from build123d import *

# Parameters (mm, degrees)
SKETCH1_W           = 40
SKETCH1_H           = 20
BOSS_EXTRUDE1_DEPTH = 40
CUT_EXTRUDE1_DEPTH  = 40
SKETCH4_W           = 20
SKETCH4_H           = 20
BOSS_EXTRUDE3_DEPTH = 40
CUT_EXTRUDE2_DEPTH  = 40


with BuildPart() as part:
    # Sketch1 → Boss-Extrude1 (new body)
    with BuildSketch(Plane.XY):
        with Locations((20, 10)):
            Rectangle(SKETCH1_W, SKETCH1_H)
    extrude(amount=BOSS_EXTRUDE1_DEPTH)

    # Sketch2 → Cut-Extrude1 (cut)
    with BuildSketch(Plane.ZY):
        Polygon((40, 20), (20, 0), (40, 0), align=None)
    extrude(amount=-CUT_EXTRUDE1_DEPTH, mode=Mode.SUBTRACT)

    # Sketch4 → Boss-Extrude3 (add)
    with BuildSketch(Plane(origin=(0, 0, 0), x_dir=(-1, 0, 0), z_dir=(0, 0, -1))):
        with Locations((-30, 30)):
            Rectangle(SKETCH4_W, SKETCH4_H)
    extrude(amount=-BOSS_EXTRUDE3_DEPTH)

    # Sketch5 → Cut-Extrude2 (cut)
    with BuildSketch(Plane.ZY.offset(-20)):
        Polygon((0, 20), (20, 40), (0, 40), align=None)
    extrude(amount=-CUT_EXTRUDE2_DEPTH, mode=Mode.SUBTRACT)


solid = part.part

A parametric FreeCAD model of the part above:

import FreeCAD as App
import Part
import Sketcher


def add_polygon(sketch, points):
    """Adds a closed chain of lines whose ends are joined by coincident constraints."""
    first, n = sketch.GeometryCount, len(points)
    for a, b in zip(points, points[1:] + points[:1]):
        sketch.addGeometry(Part.LineSegment(App.Vector(*a, 0), App.Vector(*b, 0)), False)
    for i in range(n):
        sketch.addConstraint(Sketcher.Constraint("Coincident", first + i, 2, first + (i + 1) % n, 1))

doc = App.newDocument("Part")
body = doc.addObject("PartDesign::Body", "Body")

# Sketch on XY plane
sketch1 = body.newObject("Sketcher::SketchObject", "Sketch")
sketch1.AttachmentSupport = (doc.getObject("XY_Plane"), [""])
sketch1.MapMode = "FlatFace"
add_polygon(sketch1, [(0, 20), (0, 0), (40, 0), (40, 20)])  # lines 0-3
sketch1.addConstraint(Sketcher.Constraint("Vertical", 0))
sketch1.addConstraint(Sketcher.Constraint("Horizontal", 1))
sketch1.addConstraint(Sketcher.Constraint("Vertical", 2))
sketch1.addConstraint(Sketcher.Constraint("Horizontal", 3))
sketch1.addConstraint(Sketcher.Constraint("Coincident", 0, 2, -1, 1))
sketch1.addConstraint(Sketcher.Constraint("DistanceX", 1, 1, 1, 2, 40.0))
sketch1.addConstraint(Sketcher.Constraint("DistanceY", 0, 2, 0, 1, 20.0))
pad1 = body.newObject("PartDesign::Pad", "Pad")
pad1.Profile = sketch1
pad1.Length = 40

# Sketch on YZ plane
sketch2 = body.newObject("Sketcher::SketchObject", "Sketch001")
sketch2.AttachmentSupport = (doc.getObject("YZ_Plane"), [""])
sketch2.MapMode = "FlatFace"
add_polygon(sketch2, [(20, 40), (0, 20), (0, 40)])  # lines 0-2
sketch2.addConstraint(Sketcher.Constraint("Vertical", 1))
sketch2.addConstraint(Sketcher.Constraint("Horizontal", 2))
sketch2.addConstraint(Sketcher.Constraint("PointOnObject", 0, 2, -2))
sketch2.addConstraint(Sketcher.Constraint("Equal", 2, 1))
sketch2.addConstraint(Sketcher.Constraint("DistanceX", 2, 1, 2, 2, 20.0))
sketch2.addConstraint(Sketcher.Constraint("DistanceY", -1, 1, 0, 2, 20.0))
pocket1 = body.newObject("PartDesign::Pocket", "Pocket")
pocket1.Profile = sketch2
pocket1.Length = 40
pocket1.Reversed = True

# Sketch on XY plane
sketch3 = body.newObject("Sketcher::SketchObject", "Sketch002")
sketch3.AttachmentSupport = (doc.getObject("XY_Plane"), [""])
sketch3.MapMode = "FlatFace"
add_polygon(sketch3, [(40, 40), (40, 20), (20, 20), (20, 40)])  # lines 0-3
sketch3.addConstraint(Sketcher.Constraint("Vertical", 0))
sketch3.addConstraint(Sketcher.Constraint("Horizontal", 1))
sketch3.addConstraint(Sketcher.Constraint("Vertical", 2))
sketch3.addConstraint(Sketcher.Constraint("Horizontal", 3))
sketch3.addConstraint(Sketcher.Constraint("Equal", 3, 0))
sketch3.addConstraint(Sketcher.Constraint("DistanceX", 1, 2, 1, 1, 20.0))
sketch3.addConstraint(Sketcher.Constraint("DistanceX", -1, 1, 0, 2, 40.0))
sketch3.addConstraint(Sketcher.Constraint("DistanceY", -1, 1, 0, 2, 20.0))
pad2 = body.newObject("PartDesign::Pad", "Pad001")
pad2.Profile = sketch3
pad2.Length = 40

# Sketch on YZ plane
sketch4 = body.newObject("Sketcher::SketchObject", "Sketch003")
sketch4.AttachmentSupport = (doc.getObject("YZ_Plane"), [""])
sketch4.MapMode = "FlatFace"
sketch4.AttachmentOffset = App.Placement(App.Vector(0, 0, 20), App.Rotation())
add_polygon(sketch4, [(20, 0), (40, 20), (40, 0)])  # lines 0-2
sketch4.addConstraint(Sketcher.Constraint("Vertical", 1))
sketch4.addConstraint(Sketcher.Constraint("Horizontal", 2))
sketch4.addConstraint(Sketcher.Constraint("PointOnObject", 1, 2, -1))
sketch4.addConstraint(Sketcher.Constraint("Equal", 2, 1))
sketch4.addConstraint(Sketcher.Constraint("DistanceX", 2, 2, 2, 1, 20.0))
sketch4.addConstraint(Sketcher.Constraint("DistanceX", -1, 1, 0, 2, 40.0))
pocket2 = body.newObject("PartDesign::Pocket", "Pocket001")
pocket2.Profile = sketch4
pocket2.Length = 40
pocket2.Reversed = True

doc.recompute()
